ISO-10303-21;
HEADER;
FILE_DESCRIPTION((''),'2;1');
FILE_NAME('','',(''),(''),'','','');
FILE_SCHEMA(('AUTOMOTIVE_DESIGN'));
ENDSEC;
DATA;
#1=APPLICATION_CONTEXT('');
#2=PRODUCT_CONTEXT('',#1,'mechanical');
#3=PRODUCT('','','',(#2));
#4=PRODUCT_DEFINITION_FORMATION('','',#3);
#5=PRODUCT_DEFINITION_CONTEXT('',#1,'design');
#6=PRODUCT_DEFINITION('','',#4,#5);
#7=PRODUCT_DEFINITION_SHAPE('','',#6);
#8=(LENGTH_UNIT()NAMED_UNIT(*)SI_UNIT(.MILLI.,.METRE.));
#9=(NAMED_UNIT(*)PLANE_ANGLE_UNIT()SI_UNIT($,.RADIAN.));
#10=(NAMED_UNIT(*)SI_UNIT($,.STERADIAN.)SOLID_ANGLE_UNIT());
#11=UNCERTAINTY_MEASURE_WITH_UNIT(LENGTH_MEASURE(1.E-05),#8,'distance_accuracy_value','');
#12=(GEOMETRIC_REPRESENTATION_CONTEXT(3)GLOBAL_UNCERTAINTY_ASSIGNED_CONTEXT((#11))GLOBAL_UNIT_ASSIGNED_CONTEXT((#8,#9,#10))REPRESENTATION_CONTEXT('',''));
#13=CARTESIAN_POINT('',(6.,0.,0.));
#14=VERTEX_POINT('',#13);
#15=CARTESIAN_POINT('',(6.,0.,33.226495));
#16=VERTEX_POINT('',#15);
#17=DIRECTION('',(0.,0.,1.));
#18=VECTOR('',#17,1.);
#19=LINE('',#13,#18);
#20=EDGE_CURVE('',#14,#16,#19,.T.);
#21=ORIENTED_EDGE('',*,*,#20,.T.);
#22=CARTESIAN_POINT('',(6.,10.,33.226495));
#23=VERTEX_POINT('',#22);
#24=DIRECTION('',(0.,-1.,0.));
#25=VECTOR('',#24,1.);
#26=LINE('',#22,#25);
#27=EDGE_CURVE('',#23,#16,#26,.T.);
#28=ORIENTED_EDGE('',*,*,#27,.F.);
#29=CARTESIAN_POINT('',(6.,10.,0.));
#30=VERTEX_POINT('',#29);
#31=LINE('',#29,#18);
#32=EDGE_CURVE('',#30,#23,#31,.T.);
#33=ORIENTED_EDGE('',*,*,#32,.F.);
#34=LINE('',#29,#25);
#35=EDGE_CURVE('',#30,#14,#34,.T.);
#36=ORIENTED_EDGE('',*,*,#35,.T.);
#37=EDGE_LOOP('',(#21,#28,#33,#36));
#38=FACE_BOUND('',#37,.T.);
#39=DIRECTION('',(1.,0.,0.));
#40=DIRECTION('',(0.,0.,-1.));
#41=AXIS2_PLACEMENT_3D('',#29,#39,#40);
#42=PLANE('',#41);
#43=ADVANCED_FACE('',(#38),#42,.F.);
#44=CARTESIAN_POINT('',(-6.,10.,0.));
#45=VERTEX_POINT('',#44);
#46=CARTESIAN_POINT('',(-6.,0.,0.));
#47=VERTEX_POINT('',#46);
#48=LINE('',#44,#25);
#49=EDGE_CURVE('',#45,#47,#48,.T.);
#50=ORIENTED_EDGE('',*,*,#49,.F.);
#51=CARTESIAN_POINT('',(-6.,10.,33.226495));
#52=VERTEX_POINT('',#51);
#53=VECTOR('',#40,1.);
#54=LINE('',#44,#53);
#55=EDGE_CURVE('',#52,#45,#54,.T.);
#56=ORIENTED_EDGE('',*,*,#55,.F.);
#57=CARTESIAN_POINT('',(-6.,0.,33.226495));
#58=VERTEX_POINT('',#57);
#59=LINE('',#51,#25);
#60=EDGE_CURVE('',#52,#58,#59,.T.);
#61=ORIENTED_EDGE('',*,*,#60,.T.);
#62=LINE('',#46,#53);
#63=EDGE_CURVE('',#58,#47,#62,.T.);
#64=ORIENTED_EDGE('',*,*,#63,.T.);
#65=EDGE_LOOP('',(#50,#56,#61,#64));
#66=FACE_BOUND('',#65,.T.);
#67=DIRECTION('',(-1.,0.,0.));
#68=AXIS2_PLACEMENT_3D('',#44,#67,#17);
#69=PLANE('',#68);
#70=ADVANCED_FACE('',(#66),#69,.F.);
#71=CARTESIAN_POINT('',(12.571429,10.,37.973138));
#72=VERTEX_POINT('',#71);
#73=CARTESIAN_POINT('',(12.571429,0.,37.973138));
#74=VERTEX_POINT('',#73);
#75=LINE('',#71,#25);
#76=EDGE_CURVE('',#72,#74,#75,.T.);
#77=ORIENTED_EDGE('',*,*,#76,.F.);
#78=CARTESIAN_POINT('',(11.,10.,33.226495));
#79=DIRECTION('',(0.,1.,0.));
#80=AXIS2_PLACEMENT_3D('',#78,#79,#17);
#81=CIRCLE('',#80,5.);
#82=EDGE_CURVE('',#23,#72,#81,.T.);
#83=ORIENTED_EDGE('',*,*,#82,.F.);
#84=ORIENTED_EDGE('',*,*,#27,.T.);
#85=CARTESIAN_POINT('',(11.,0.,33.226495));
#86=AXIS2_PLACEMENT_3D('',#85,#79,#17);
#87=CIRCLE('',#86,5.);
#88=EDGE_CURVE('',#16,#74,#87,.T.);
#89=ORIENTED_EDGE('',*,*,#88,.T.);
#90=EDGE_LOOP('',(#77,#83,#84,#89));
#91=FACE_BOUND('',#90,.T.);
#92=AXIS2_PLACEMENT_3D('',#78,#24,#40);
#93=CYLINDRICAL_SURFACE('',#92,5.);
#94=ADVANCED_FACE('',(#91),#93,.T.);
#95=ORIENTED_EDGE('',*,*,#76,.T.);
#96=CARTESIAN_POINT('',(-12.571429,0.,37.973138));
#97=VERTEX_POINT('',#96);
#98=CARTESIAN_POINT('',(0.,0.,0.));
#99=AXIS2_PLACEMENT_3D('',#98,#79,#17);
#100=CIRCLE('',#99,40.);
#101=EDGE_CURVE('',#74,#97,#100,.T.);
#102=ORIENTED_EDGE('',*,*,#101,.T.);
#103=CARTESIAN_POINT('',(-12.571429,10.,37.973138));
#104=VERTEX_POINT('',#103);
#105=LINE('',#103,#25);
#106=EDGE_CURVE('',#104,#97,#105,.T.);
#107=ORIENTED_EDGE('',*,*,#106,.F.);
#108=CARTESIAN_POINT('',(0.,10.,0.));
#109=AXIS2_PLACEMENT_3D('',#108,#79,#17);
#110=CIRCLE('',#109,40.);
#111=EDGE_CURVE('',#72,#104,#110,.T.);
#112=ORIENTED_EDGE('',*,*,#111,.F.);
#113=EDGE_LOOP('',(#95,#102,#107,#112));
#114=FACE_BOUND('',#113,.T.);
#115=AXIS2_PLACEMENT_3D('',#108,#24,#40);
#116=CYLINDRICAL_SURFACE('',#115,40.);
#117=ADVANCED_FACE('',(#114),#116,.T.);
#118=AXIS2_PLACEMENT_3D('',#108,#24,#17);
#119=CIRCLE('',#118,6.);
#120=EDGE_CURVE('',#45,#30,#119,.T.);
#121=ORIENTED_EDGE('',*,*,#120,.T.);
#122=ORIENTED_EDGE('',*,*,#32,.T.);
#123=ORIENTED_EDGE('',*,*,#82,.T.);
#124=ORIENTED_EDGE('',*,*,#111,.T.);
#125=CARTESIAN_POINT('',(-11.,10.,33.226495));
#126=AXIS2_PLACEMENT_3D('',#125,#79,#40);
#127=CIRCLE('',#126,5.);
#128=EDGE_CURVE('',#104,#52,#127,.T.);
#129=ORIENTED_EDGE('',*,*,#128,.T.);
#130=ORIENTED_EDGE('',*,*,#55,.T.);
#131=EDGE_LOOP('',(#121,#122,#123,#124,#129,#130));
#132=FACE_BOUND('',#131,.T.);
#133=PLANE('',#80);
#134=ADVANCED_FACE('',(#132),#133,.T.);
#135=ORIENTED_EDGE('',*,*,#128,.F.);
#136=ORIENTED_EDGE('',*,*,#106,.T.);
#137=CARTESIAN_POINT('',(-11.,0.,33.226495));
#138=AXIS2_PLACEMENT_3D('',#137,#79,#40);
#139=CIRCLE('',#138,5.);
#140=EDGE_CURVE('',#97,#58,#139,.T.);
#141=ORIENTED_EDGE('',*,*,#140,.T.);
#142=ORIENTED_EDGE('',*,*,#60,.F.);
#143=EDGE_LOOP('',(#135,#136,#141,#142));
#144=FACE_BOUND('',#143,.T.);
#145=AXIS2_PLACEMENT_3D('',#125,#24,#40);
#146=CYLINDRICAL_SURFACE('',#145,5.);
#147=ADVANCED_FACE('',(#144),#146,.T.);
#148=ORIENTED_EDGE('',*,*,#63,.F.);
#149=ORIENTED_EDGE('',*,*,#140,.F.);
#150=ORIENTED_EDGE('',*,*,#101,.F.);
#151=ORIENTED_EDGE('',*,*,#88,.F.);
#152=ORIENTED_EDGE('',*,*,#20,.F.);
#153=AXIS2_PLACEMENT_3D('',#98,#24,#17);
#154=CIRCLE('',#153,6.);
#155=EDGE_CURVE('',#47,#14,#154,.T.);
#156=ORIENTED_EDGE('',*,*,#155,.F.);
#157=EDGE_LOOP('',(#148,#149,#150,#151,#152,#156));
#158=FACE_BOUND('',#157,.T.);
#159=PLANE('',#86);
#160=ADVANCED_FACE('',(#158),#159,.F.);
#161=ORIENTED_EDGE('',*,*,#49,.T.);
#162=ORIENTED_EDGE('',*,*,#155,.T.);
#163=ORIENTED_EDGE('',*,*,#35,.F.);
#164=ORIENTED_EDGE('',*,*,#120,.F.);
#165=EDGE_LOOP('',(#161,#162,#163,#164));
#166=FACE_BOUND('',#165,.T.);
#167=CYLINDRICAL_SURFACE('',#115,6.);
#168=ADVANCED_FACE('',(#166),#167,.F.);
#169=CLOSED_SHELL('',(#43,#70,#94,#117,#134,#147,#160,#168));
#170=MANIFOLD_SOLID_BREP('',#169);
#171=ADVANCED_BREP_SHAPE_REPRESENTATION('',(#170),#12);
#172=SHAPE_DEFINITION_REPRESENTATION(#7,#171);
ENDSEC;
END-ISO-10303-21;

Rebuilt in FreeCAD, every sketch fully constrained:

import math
import FreeCAD as App
import Part
import Sketcher

V = App.Vector

doc = App.newDocument("Part")
body = doc.addObject("PartDesign::Body", "Body")

sketch1 = body.newObject("Sketcher::SketchObject", "Sketch")
sketch1.AttachmentSupport = (doc.getObject("XZ_Plane"), [""])
sketch1.MapMode = "FlatFace"
sketch1.addGeometry(Part.LineSegment(V(6, 0, 0), V(6, 33.226495, 0)), False)
sketch1.addGeometry(Part.ArcOfCircle(Part.Circle(V(11, 33.226495, 0), V(0, 0, 1), 5), math.radians(71.682302), math.radians(180)), False)
sketch1.addGeometry(Part.ArcOfCircle(Part.Circle(V(0, 0, 0), V(0, 0, 1), 40), math.radians(108.317698), math.radians(431.682302)), False)
sketch1.addGeometry(Part.ArcOfCircle(Part.Circle(V(-11, 33.226495, 0), V(0, 0, 1), 5), math.radians(0), math.radians(108.317698)), False)
sketch1.addGeometry(Part.LineSegment(V(-6, 33.226495, 0), V(-6, 0, 0)), False)
sketch1.addGeometry(Part.ArcOfCircle(Part.Circle(V(0, 0, 0), V(0, 0, 1), 6), math.radians(180), math.radians(360)), False)
sketch1.addConstraint(Sketcher.Constraint("Tangent", 0, 2, 1, 2))
sketch1.addConstraint(Sketcher.Constraint("Tangent", 1, 1, 2, 2))
sketch1.addConstraint(Sketcher.Constraint("Tangent", 2, 1, 3, 2))
sketch1.addConstraint(Sketcher.Constraint("Tangent", 3, 1, 4, 1))
sketch1.addConstraint(Sketcher.Constraint("Tangent", 4, 2, 5, 1))
sketch1.addConstraint(Sketcher.Constraint("Tangent", 5, 2, 0, 1))
sketch1.addConstraint(Sketcher.Constraint("Vertical", 0))
sketch1.addConstraint(Sketcher.Constraint("Vertical", 4))
sketch1.addConstraint(Sketcher.Constraint("Coincident", 2, 3, -1, 1))
sketch1.addConstraint(Sketcher.Constraint("Coincident", 5, 3, -1, 1))
sketch1.addConstraint(Sketcher.Constraint("Equal", 1, 3))
sketch1.addConstraint(Sketcher.Constraint("Radius", 1, 5.0))
sketch1.addConstraint(Sketcher.Constraint("Radius", 2, 40.0))
sketch1.addConstraint(Sketcher.Constraint("Radius", 5, 6.0))
pad1 = body.newObject("PartDesign::Pad", "Pad")
pad1.Profile = sketch1
pad1.Length = 10
pad1.Reversed = True

doc.recompute()
